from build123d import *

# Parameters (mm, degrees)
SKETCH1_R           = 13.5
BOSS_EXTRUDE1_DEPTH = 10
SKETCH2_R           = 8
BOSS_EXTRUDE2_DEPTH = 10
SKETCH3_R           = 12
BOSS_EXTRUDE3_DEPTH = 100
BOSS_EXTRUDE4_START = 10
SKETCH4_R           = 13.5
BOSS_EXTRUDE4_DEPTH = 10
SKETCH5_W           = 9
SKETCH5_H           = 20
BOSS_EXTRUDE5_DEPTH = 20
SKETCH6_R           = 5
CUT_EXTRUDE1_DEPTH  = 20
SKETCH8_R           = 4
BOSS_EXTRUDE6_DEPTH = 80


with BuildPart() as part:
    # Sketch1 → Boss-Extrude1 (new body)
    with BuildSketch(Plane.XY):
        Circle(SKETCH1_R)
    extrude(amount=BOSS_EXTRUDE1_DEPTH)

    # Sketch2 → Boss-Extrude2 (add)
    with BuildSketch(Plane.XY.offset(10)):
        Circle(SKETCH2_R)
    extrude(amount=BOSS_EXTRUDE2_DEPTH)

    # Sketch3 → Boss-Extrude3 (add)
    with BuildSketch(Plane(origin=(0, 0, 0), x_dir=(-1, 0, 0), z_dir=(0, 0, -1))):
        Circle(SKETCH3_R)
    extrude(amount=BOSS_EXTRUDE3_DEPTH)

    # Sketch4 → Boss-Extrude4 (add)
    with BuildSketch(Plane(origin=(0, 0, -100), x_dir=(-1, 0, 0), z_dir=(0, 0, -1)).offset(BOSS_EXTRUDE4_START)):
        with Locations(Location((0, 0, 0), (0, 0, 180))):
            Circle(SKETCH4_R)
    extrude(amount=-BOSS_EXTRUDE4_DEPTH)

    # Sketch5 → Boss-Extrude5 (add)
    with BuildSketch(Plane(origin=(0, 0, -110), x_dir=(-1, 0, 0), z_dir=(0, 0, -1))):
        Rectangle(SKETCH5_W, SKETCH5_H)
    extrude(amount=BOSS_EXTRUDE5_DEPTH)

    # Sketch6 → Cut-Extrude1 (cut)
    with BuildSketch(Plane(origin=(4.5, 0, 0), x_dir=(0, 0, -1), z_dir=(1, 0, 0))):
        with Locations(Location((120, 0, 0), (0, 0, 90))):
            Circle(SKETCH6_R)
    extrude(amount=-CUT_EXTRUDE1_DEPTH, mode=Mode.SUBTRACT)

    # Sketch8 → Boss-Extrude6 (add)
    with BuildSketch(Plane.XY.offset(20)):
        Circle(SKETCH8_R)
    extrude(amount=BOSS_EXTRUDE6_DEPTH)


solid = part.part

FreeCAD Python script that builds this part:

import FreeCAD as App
import Part
import Sketcher


def add_polygon(sketch, points):
    """Adds a closed chain of lines whose ends are joined by coincident constraints."""
    first, n = sketch.GeometryCount, len(points)
    for a, b in zip(points, points[1:] + points[:1]):
        sketch.addGeometry(Part.LineSegment(App.Vector(*a, 0), App.Vector(*b, 0)), False)
    for i in range(n):
        sketch.addConstraint(Sketcher.Constraint("Coincident", first + i, 2, first + (i + 1) % n, 1))

doc = App.newDocument("Part")
body = doc.addObject("PartDesign::Body", "Body")

sketch1 = doc.addObject("Sketcher::SketchObject", "Sketch")
body.addObject(sketch1)
sketch1.AttachmentSupport = (doc.XY_Plane, [""])
sketch1.MapMode = "FlatFace"
sketch1.addGeometry(Part.Circle(App.Vector(0, 0, 0), App.Vector(0, 0, 1), 13.5), False)
sketch1.addConstraint([
    Sketcher.Constraint("Coincident", 0, 3, -1, 1),
    Sketcher.Constraint("Diameter", 0, 27.0),
])
pad1 = doc.addObject("PartDesign::Pad", "Pad")
body.addObject(pad1)
pad1.Profile = sketch1
pad1.Length = 10

sketch2 = doc.addObject("Sketcher::SketchObject", "Sketch001")
body.addObject(sketch2)
sketch2.AttachmentSupport = (doc.XY_Plane, [""])
sketch2.MapMode = "FlatFace"
sketch2.AttachmentOffset = App.Placement(App.Vector(0, 0, 10), App.Rotation())
sketch2.addGeometry(Part.Circle(App.Vector(0, 0, 0), App.Vector(0, 0, 1), 8), False)
sketch2.addConstraint([
    Sketcher.Constraint("Coincident", 0, 3, -1, 1),
    Sketcher.Constraint("Diameter", 0, 16.0),
])
pad2 = doc.addObject("PartDesign::Pad", "Pad001")
body.addObject(pad2)
pad2.Profile = sketch2
pad2.Length = 10

sketch3 = doc.addObject("Sketcher::SketchObject", "Sketch002")
body.addObject(sketch3)
sketch3.AttachmentSupport = (doc.XY_Plane, [""])
sketch3.MapMode = "FlatFace"
sketch3.addGeometry(Part.Circle(App.Vector(0, 0, 0), App.Vector(0, 0, 1), 12), False)
sketch3.addConstraint([
    Sketcher.Constraint("Coincident", 0, 3, -1, 1),
    Sketcher.Constraint("Diameter", 0, 24.0),
])
pad3 = doc.addObject("PartDesign::Pad", "Pad002")
body.addObject(pad3)
pad3.Profile = sketch3
pad3.Length = 100
pad3.Reversed = True

sketch4 = doc.addObject("Sketcher::SketchObject", "Sketch003")
body.addObject(sketch4)
sketch4.AttachmentSupport = (doc.XY_Plane, [""])
sketch4.MapMode = "FlatFace"
sketch4.AttachmentOffset = App.Placement(App.Vector(0, 0, -110), App.Rotation())
sketch4.addGeometry(Part.Circle(App.Vector(0, 0, 0), App.Vector(0, 0, 1), 13.5), False)
sketch4.addConstraint([
    Sketcher.Constraint("Coincident", 0, 3, -1, 1),
    Sketcher.Constraint("Diameter", 0, 27.0),
])
pad4 = doc.addObject("PartDesign::Pad", "Pad003")
body.addObject(pad4)
pad4.Profile = sketch4
pad4.Length = 10

sketch5 = doc.addObject("Sketcher::SketchObject", "Sketch004")
body.addObject(sketch5)
sketch5.AttachmentSupport = (doc.XY_Plane, [""])
sketch5.MapMode = "FlatFace"
sketch5.AttachmentOffset = App.Placement(App.Vector(0, 0, -110), App.Rotation())
add_polygon(sketch5, [(4.5, 10), (4.5, -10), (-4.5, -10), (-4.5, 10)])
sketch5.addConstraint([
    Sketcher.Constraint("Vertical", 0),
    Sketcher.Constraint("Horizontal", 1),
    Sketcher.Constraint("Vertical", 2),
    Sketcher.Constraint("Horizontal", 3),
    Sketcher.Constraint("Symmetric", 0, 2, 2, 2, -1, 1),
    Sketcher.Constraint("DistanceX", 1, 2, 1, 1, 9.0),
    Sketcher.Constraint("DistanceY", 0, 2, 0, 1, 20.0),
])
pad5 = doc.addObject("PartDesign::Pad", "Pad004")
body.addObject(pad5)
pad5.Profile = sketch5
pad5.Length = 20
pad5.Reversed = True

sketch6 = doc.addObject("Sketcher::SketchObject", "Sketch005")
body.addObject(sketch6)
sketch6.AttachmentSupport = (doc.YZ_Plane, [""])
sketch6.MapMode = "FlatFace"
sketch6.AttachmentOffset = App.Placement(App.Vector(0, 0, 4.5), App.Rotation())
sketch6.addGeometry(Part.Circle(App.Vector(0, -120, 0), App.Vector(0, 0, 1), 5), False)
sketch6.addConstraint([
    Sketcher.Constraint("PointOnObject", 0, 3, -2),
    Sketcher.Constraint("Diameter", 0, 10.0),
    Sketcher.Constraint("DistanceY", 0, 3, -1, 1, 120.0),
])
pocket1 = doc.addObject("PartDesign::Pocket", "Pocket")
body.addObject(pocket1)
pocket1.Profile = sketch6
pocket1.Length = 20

sketch7 = doc.addObject("Sketcher::SketchObject", "Sketch006")
body.addObject(sketch7)
sketch7.AttachmentSupport = (doc.XY_Plane, [""])
sketch7.MapMode = "FlatFace"
sketch7.AttachmentOffset = App.Placement(App.Vector(0, 0, 20), App.Rotation())
sketch7.addGeometry(Part.Circle(App.Vector(0, 0, 0), App.Vector(0, 0, 1), 4), False)
sketch7.addConstraint([
    Sketcher.Constraint("Coincident", 0, 3, -1, 1),
    Sketcher.Constraint("Diameter", 0, 8.0),
])
pad6 = doc.addObject("PartDesign::Pad", "Pad005")
body.addObject(pad6)
pad6.Profile = sketch7
pad6.Length = 80

doc.recompute()
